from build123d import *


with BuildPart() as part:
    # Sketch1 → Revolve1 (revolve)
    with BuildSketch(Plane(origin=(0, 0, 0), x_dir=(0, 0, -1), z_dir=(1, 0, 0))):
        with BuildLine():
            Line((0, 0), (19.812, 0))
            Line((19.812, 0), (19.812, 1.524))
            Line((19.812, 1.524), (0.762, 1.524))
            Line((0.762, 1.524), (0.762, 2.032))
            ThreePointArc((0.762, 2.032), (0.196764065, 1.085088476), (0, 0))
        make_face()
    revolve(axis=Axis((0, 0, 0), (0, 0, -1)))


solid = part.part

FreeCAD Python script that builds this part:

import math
import FreeCAD as App
import Part
import Sketcher
Q = App.Units.Quantity

doc = App.newDocument("Part")
params = doc.addObject("Spreadsheet::Sheet", "Params")
for row, (alias, value) in enumerate([
    ("sketch1_width", "0.06 in"),
    ("sketch1_width2", "0.02 in"),
    ("sketch1_height", "0.78 in"),
    ("sketch1_height2", "0.75 in"),
    ("revolution_angle", "360 deg"),
], start=1):
    params.set(f"A{row}", alias)
    params.set(f"B{row}", "=" + value)
    params.setAlias(f"B{row}", alias)

body = doc.addObject("PartDesign::Body", "Body")

# Sketch on YZ plane
sketch1 = body.newObject("Sketcher::SketchObject", "Sketch")
sketch1.AttachmentSupport = (doc.getObject("YZ_Plane"), [""])
sketch1.MapMode = "FlatFace"
sketch1.addGeometry(Part.LineSegment(App.Vector(0, 0, 0), App.Vector(0, -19.8, 0)), False)
sketch1.addGeometry(Part.LineSegment(App.Vector(0, -19.8, 0), App.Vector(1.5, -19.8, 0)), False)
sketch1.addGeometry(Part.LineSegment(App.Vector(1.5, -19.8, 0), App.Vector(1.5, -0.8, 0)), False)
sketch1.addGeometry(Part.LineSegment(App.Vector(1.5, -0.8, 0), App.Vector(2, -0.8, 0)), False)
sketch1.addGeometry(Part.ArcOfCircle(Part.Circle(App.Vector(0, -3.1, 0), App.Vector(0, 0, 1), 3.1), math.radians(49), math.radians(90)), False)
sketch1.addConstraint(Sketcher.Constraint("Coincident", 0, 2, 1, 1))
sketch1.addConstraint(Sketcher.Constraint("Coincident", 1, 2, 2, 1))
sketch1.addConstraint(Sketcher.Constraint("Coincident", 2, 2, 3, 1))
sketch1.addConstraint(Sketcher.Constraint("Coincident", 3, 2, 4, 1))
sketch1.addConstraint(Sketcher.Constraint("Coincident", 4, 2, 0, 1))
sketch1.addConstraint(Sketcher.Constraint("Vertical", 0))
sketch1.addConstraint(Sketcher.Constraint("Horizontal", 1))
sketch1.addConstraint(Sketcher.Constraint("Vertical", 2))
sketch1.addConstraint(Sketcher.Constraint("Horizontal", 3))
sketch1.addConstraint(Sketcher.Constraint("Coincident", 4, 2, -1, 1))
sketch1.addConstraint(Sketcher.Constraint("PointOnObject", 4, 3, -2))
sketch1.addConstraint(Sketcher.Constraint("DistanceX", 1, 1, 1, 2, Q("0.06 in")))
sketch1.addConstraint(Sketcher.Constraint("DistanceX", 3, 1, 3, 2, Q("0.02 in")))
sketch1.addConstraint(Sketcher.Constraint("DistanceY", 0, 2, 0, 1, Q("0.78 in")))
sketch1.addConstraint(Sketcher.Constraint("DistanceY", 2, 1, 2, 2, Q("0.75 in")))
sketch1.setExpression("Constraints[11]", "Params.sketch1_width")
sketch1.setExpression("Constraints[12]", "Params.sketch1_width2")
sketch1.setExpression("Constraints[13]", "Params.sketch1_height")
sketch1.setExpression("Constraints[14]", "Params.sketch1_height2")
revolution = body.newObject("PartDesign::Revolution", "Revolution")
revolution.Profile = sketch1
revolution.ReferenceAxis = (sketch1, ["V_Axis"])
revolution.setExpression("Angle", "Params.revolution_angle")

doc.recompute()
